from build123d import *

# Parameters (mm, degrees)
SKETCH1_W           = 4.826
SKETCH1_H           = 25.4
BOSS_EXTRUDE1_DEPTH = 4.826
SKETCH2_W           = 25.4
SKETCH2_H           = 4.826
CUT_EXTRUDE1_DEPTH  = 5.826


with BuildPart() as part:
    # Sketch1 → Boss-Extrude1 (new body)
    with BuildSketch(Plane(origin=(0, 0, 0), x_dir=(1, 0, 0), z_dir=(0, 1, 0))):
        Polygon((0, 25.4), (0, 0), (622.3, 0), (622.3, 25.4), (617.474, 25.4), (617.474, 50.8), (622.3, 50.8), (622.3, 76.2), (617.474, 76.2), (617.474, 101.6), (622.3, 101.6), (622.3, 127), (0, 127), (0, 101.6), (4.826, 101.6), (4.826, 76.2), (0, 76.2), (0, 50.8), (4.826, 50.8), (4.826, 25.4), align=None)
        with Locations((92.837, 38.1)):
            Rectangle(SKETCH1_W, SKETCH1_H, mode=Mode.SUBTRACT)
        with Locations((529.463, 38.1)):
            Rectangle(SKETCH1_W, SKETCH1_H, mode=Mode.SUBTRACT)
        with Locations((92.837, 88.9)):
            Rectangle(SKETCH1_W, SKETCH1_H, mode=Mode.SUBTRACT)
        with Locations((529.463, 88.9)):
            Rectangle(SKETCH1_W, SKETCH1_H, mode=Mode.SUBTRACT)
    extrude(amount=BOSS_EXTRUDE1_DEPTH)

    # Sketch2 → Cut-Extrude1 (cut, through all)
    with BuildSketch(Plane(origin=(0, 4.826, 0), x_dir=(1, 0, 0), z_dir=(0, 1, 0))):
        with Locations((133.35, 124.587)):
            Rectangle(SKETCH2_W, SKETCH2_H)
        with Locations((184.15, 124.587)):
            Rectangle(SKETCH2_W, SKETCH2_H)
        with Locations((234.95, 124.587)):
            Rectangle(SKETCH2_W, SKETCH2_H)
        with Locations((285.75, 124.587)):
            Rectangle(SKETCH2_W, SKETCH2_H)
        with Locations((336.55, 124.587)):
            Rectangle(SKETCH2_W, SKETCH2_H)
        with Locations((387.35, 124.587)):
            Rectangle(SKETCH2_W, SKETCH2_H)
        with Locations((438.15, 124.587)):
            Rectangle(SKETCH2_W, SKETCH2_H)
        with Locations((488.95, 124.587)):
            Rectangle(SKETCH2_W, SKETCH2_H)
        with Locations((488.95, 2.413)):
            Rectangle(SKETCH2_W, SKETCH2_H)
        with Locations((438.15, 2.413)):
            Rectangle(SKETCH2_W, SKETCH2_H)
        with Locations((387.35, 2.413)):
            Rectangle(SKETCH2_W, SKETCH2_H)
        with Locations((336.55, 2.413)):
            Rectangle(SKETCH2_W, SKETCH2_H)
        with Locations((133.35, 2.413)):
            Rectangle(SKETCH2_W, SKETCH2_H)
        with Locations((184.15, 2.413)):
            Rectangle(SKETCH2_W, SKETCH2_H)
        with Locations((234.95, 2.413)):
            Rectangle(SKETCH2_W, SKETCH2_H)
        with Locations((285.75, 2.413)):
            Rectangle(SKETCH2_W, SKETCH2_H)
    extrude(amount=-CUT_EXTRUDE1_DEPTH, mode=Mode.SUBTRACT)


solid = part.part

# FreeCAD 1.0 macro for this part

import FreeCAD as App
import Part
import Sketcher
from FreeCAD import Vector
Q = App.Units.Quantity


def add_polygon(sketch, points):
    """Adds a closed chain of lines whose ends are joined by coincident constraints."""
    first, n = sketch.GeometryCount, len(points)
    for a, b in zip(points, points[1:] + points[:1]):
        sketch.addGeometry(Part.LineSegment(App.Vector(*a, 0), App.Vector(*b, 0)), False)
    for i in range(n):
        sketch.addConstraint(Sketcher.Constraint("Coincident", first + i, 2, first + (i + 1) % n, 1))

doc = App.newDocument("Part")
body = doc.addObject("PartDesign::Body", "Body")

sketch1 = doc.addObject("Sketcher::SketchObject", "Sketch")
body.addObject(sketch1)
sketch1.AttachmentSupport = (doc.XZ_Plane, [""])
sketch1.MapMode = "FlatFace"
add_polygon(sketch1, [(0, -25.4), (0, 0), (622.3, 0), (622.3, -25.4), (617.474, -25.4), (617.474, -50.8), (622.3, -50.8), (622.3, -76.2), (617.474, -76.2), (617.474, -101.6), (622.3, -101.6), (622.3, -127), (0, -127), (0, -101.6), (4.826, -101.6), (4.826, -76.2), (0, -76.2), (0, -50.8), (4.826, -50.8), (4.826, -25.4)])
add_polygon(sketch1, [(95.25, -25.4), (90.424, -25.4), (90.424, -50.8), (95.25, -50.8)])
add_polygon(sketch1, [(531.876, -25.4), (527.05, -25.4), (527.05, -50.8), (531.876, -50.8)])
add_polygon(sketch1, [(95.25, -76.2), (90.424, -76.2), (90.424, -101.6), (95.25, -101.6)])
add_polygon(sketch1, [(531.876, -76.2), (527.05, -76.2), (527.05, -101.6), (531.876, -101.6)])
sketch1.addConstraint(Sketcher.Constraint("Vertical", 0))
sketch1.addConstraint(Sketcher.Constraint("Horizontal", 1))
sketch1.addConstraint(Sketcher.Constraint("Vertical", 2))
sketch1.addConstraint(Sketcher.Constraint("Horizontal", 3))
sketch1.addConstraint(Sketcher.Constraint("Vertical", 4))
sketch1.addConstraint(Sketcher.Constraint("Horizontal", 5))
sketch1.addConstraint(Sketcher.Constraint("Vertical", 6))
sketch1.addConstraint(Sketcher.Constraint("Horizontal", 7))
sketch1.addConstraint(Sketcher.Constraint("Vertical", 8))
sketch1.addConstraint(Sketcher.Constraint("Horizontal", 9))
sketch1.addConstraint(Sketcher.Constraint("Vertical", 10))
sketch1.addConstraint(Sketcher.Constraint("Horizontal", 11))
sketch1.addConstraint(Sketcher.Constraint("Vertical", 12))
sketch1.addConstraint(Sketcher.Constraint("Horizontal", 13))
sketch1.addConstraint(Sketcher.Constraint("Vertical", 14))
sketch1.addConstraint(Sketcher.Constraint("Horizontal", 15))
sketch1.addConstraint(Sketcher.Constraint("Vertical", 16))
sketch1.addConstraint(Sketcher.Constraint("Horizontal", 17))
sketch1.addConstraint(Sketcher.Constraint("Vertical", 18))
sketch1.addConstraint(Sketcher.Constraint("Horizontal", 19))
sketch1.addConstraint(Sketcher.Constraint("Horizontal", 20))
sketch1.addConstraint(Sketcher.Constraint("Vertical", 21))
sketch1.addConstraint(Sketcher.Constraint("Horizontal", 22))
sketch1.addConstraint(Sketcher.Constraint("Vertical", 23))
sketch1.addConstraint(Sketcher.Constraint("Horizontal", 24))
sketch1.addConstraint(Sketcher.Constraint("Vertical", 25))
sketch1.addConstraint(Sketcher.Constraint("Horizontal", 26))
sketch1.addConstraint(Sketcher.Constraint("Vertical", 27))
sketch1.addConstraint(Sketcher.Constraint("Horizontal", 28))
sketch1.addConstraint(Sketcher.Constraint("Vertical", 29))
sketch1.addConstraint(Sketcher.Constraint("Horizontal", 30))
sketch1.addConstraint(Sketcher.Constraint("Vertical", 31))
sketch1.addConstraint(Sketcher.Constraint("Horizontal", 32))
sketch1.addConstraint(Sketcher.Constraint("Vertical", 33))
sketch1.addConstraint(Sketcher.Constraint("Horizontal", 34))
sketch1.addConstraint(Sketcher.Constraint("Vertical", 35))
sketch1.addConstraint(Sketcher.Constraint("Coincident", 0, 2, -1, 1))
sketch1.addConstraint(Sketcher.Constraint("PointOnObject", 11, 2, -2))
sketch1.addConstraint(Sketcher.Constraint("PointOnObject", 15, 2, -2))
sketch1.addConstraint(Sketcher.Constraint("Horizontal", 9, 2, 12, 2))
sketch1.addConstraint(Sketcher.Constraint("Horizontal", 7, 2, 14, 2))
sketch1.addConstraint(Sketcher.Constraint("Horizontal", 5, 2, 16, 2))
sketch1.addConstraint(Sketcher.Constraint("Horizontal", 3, 2, 18, 2))
sketch1.addConstraint(Sketcher.Constraint("Horizontal", 19, 2, 20, 2))
sketch1.addConstraint(Sketcher.Constraint("Horizontal", 17, 2, 21, 2))
sketch1.addConstraint(Sketcher.Constraint("Horizontal", 23, 2, 24, 2))
sketch1.addConstraint(Sketcher.Constraint("Horizontal", 22, 2, 25, 2))
sketch1.addConstraint(Sketcher.Constraint("Horizontal", 15, 2, 28, 2))
sketch1.addConstraint(Sketcher.Constraint("Horizontal", 13, 2, 29, 2))
sketch1.addConstraint(Sketcher.Constraint("Horizontal", 31, 2, 32, 2))
sketch1.addConstraint(Sketcher.Constraint("Horizontal", 30, 2, 33, 2))
sketch1.addConstraint(Sketcher.Constraint("Vertical", 2, 2, 5, 2))
sketch1.addConstraint(Sketcher.Constraint("Vertical", 4, 2, 7, 2))
sketch1.addConstraint(Sketcher.Constraint("Vertical", 6, 2, 9, 2))
sketch1.addConstraint(Sketcher.Constraint("Vertical", 14, 2, 17, 2))
sketch1.addConstraint(Sketcher.Constraint("Vertical", 21, 2, 28, 2))
sketch1.addConstraint(Sketcher.Constraint("Vertical", 23, 2, 30, 2))
sketch1.addConstraint(Sketcher.Constraint("Vertical", 25, 2, 32, 2))
sketch1.addConstraint(Sketcher.Constraint("Vertical", 27, 2, 34, 2))
sketch1.addConstraint(Sketcher.Constraint("Equal", 9, 13))
sketch1.addConstraint(Sketcher.Constraint("Equal", 19, 20))
sketch1.addConstraint(Sketcher.Constraint("Equal", 22, 24))
sketch1.addConstraint(Sketcher.Constraint("Equal", 2, 4))
sketch1.addConstraint(Sketcher.Constraint("Equal", 4, 6))
sketch1.addConstraint(Sketcher.Constraint("Equal", 6, 8))
sketch1.addConstraint(Sketcher.Constraint("Equal", 8, 10))
sketch1.addConstraint(Sketcher.Constraint("DistanceY", 0, 1, 0, 2, Q("1 in")))
sketch1.addConstraint(Sketcher.Constraint("DistanceX", 1, 1, 1, 2, Q("24.5 in")))
sketch1.addConstraint(Sketcher.Constraint("DistanceX", 3, 2, 3, 1, Q("0.19 in")))
sketch1.addConstraint(Sketcher.Constraint("DistanceX", -1, 1, 20, 2, Q("3.56 in")))
sketch1.addConstraint(Sketcher.Constraint("DistanceX", -1, 1, 24, 2, Q("20.75 in")))
pad1 = doc.addObject("PartDesign::Pad", "Pad")
body.addObject(pad1)
pad1.Profile = sketch1
pad1.Length = Q("0.19 in")
pad1.Reversed = True

sketch2 = doc.addObject("Sketcher::SketchObject", "Sketch001")
body.addObject(sketch2)
sketch2.AttachmentSupport = (doc.XZ_Plane, [""])
sketch2.MapMode = "FlatFace"
sketch2.AttachmentOffset = App.Placement(Vector(0, 0, -0.19 * 25.4), App.Rotation())
add_polygon(sketch2, [(120.65, -127), (120.65, -122.174), (146.05, -122.174), (146.05, -127)])
add_polygon(sketch2, [(171.45, -127), (171.45, -122.174), (196.85, -122.174), (196.85, -127)])
add_polygon(sketch2, [(222.25, -127), (222.25, -122.174), (247.65, -122.174), (247.65, -127)])
add_polygon(sketch2, [(273.05, -127), (273.05, -122.174), (298.45, -122.174), (298.45, -127)])
add_polygon(sketch2, [(323.85, -127), (323.85, -122.174), (349.25, -122.174), (349.25, -127)])
add_polygon(sketch2, [(374.65, -127), (374.65, -122.174), (400.05, -122.174), (400.05, -127)])
add_polygon(sketch2, [(425.45, -127), (425.45, -122.174), (450.85, -122.174), (450.85, -127)])
add_polygon(sketch2, [(476.25, -127), (476.25, -122.174), (501.65, -122.174), (501.65, -127)])
add_polygon(sketch2, [(476.25, -4.826), (476.25, 0), (501.65, 0), (501.65, -4.826)])
add_polygon(sketch2, [(425.45, -4.826), (425.45, 0), (450.85, 0), (450.85, -4.826)])
add_polygon(sketch2, [(374.65, -4.826), (374.65, 0), (400.05, 0), (400.05, -4.826)])
add_polygon(sketch2, [(323.85, -4.826), (323.85, 0), (349.25, 0), (349.25, -4.826)])
add_polygon(sketch2, [(120.65, -4.826), (120.65, 0), (146.05, 0), (146.05, -4.826)])
add_polygon(sketch2, [(171.45, -4.826), (171.45, 0), (196.85, 0), (196.85, -4.826)])
add_polygon(sketch2, [(222.25, -4.826), (222.25, 0), (247.65, 0), (247.65, -4.826)])
add_polygon(sketch2, [(273.05, -4.826), (273.05, 0), (298.45, 0), (298.45, -4.826)])
sketch2.addConstraint(Sketcher.Constraint("Vertical", 0))
sketch2.addConstraint(Sketcher.Constraint("Horizontal", 1))
sketch2.addConstraint(Sketcher.Constraint("Vertical", 2))
sketch2.addConstraint(Sketcher.Constraint("Horizontal", 3))
sketch2.addConstraint(Sketcher.Constraint("Vertical", 4))
sketch2.addConstraint(Sketcher.Constraint("Horizontal", 5))
sketch2.addConstraint(Sketcher.Constraint("Vertical", 6))
sketch2.addConstraint(Sketcher.Constraint("Horizontal", 7))
sketch2.addConstraint(Sketcher.Constraint("Vertical", 8))
sketch2.addConstraint(Sketcher.Constraint("Horizontal", 9))
sketch2.addConstraint(Sketcher.Constraint("Vertical", 10))
sketch2.addConstraint(Sketcher.Constraint("Horizontal", 11))
sketch2.addConstraint(Sketcher.Constraint("Vertical", 12))
sketch2.addConstraint(Sketcher.Constraint("Horizontal", 13))
sketch2.addConstraint(Sketcher.Constraint("Vertical", 14))
sketch2.addConstraint(Sketcher.Constraint("Horizontal", 15))
sketch2.addConstraint(Sketcher.Constraint("Vertical", 16))
sketch2.addConstraint(Sketcher.Constraint("Horizontal", 17))
sketch2.addConstraint(Sketcher.Constraint("Vertical", 18))
sketch2.addConstraint(Sketcher.Constraint("Horizontal", 19))
sketch2.addConstraint(Sketcher.Constraint("Vertical", 20))
sketch2.addConstraint(Sketcher.Constraint("Horizontal", 21))
sketch2.addConstraint(Sketcher.Constraint("Vertical", 22))
sketch2.addConstraint(Sketcher.Constraint("Horizontal", 23))
sketch2.addConstraint(Sketcher.Constraint("Vertical", 24))
sketch2.addConstraint(Sketcher.Constraint("Horizontal", 25))
sketch2.addConstraint(Sketcher.Constraint("Vertical", 26))
sketch2.addConstraint(Sketcher.Constraint("Horizontal", 27))
sketch2.addConstraint(Sketcher.Constraint("Vertical", 28))
sketch2.addConstraint(Sketcher.Constraint("Horizontal", 29))
sketch2.addConstraint(Sketcher.Constraint("Vertical", 30))
sketch2.addConstraint(Sketcher.Constraint("Horizontal", 31))
sketch2.addConstraint(Sketcher.Constraint("Vertical", 32))
sketch2.addConstraint(Sketcher.Constraint("Horizontal", 33))
sketch2.addConstraint(Sketcher.Constraint("Vertical", 34))
sketch2.addConstraint(Sketcher.Constraint("Horizontal", 35))
sketch2.addConstraint(Sketcher.Constraint("Vertical", 36))
sketch2.addConstraint(Sketcher.Constraint("Horizontal", 37))
sketch2.addConstraint(Sketcher.Constraint("Vertical", 38))
sketch2.addConstraint(Sketcher.Constraint("Horizontal", 39))
sketch2.addConstraint(Sketcher.Constraint("Vertical", 40))
sketch2.addConstraint(Sketcher.Constraint("Horizontal", 41))
sketch2.addConstraint(Sketcher.Constraint("Vertical", 42))
sketch2.addConstraint(Sketcher.Constraint("Horizontal", 43))
sketch2.addConstraint(Sketcher.Constraint("Vertical", 44))
sketch2.addConstraint(Sketcher.Constraint("Horizontal", 45))
sketch2.addConstraint(Sketcher.Constraint("Vertical", 46))
sketch2.addConstraint(Sketcher.Constraint("Horizontal", 47))
sketch2.addConstraint(Sketcher.Constraint("Vertical", 48))
sketch2.addConstraint(Sketcher.Constraint("Horizontal", 49))
sketch2.addConstraint(Sketcher.Constraint("Vertical", 50))
sketch2.addConstraint(Sketcher.Constraint("Horizontal", 51))
sketch2.addConstraint(Sketcher.Constraint("Vertical", 52))
sketch2.addConstraint(Sketcher.Constraint("Horizontal", 53))
sketch2.addConstraint(Sketcher.Constraint("Vertical", 54))
sketch2.addConstraint(Sketcher.Constraint("Horizontal", 55))
sketch2.addConstraint(Sketcher.Constraint("Vertical", 56))
sketch2.addConstraint(Sketcher.Constraint("Horizontal", 57))
sketch2.addConstraint(Sketcher.Constraint("Vertical", 58))
sketch2.addConstraint(Sketcher.Constraint("Horizontal", 59))
sketch2.addConstraint(Sketcher.Constraint("Vertical", 60))
sketch2.addConstraint(Sketcher.Constraint("Horizontal", 61))
sketch2.addConstraint(Sketcher.Constraint("Vertical", 62))
sketch2.addConstraint(Sketcher.Constraint("Horizontal", 63))
sketch2.addConstraint(Sketcher.Constraint("PointOnObject", 32, 2, -1))
sketch2.addConstraint(Sketcher.Constraint("PointOnObject", 36, 2, -1))
sketch2.addConstraint(Sketcher.Constraint("PointOnObject", 40, 2, -1))
sketch2.addConstraint(Sketcher.Constraint("PointOnObject", 44, 2, -1))
sketch2.addConstraint(Sketcher.Constraint("PointOnObject", 48, 2, -1))
sketch2.addConstraint(Sketcher.Constraint("PointOnObject", 52, 2, -1))
sketch2.addConstraint(Sketcher.Constraint("PointOnObject", 56, 2, -1))
sketch2.addConstraint(Sketcher.Constraint("PointOnObject", 60, 2, -1))
sketch2.addConstraint(Sketcher.Constraint("Horizontal", 1, 2, 4, 2))
sketch2.addConstraint(Sketcher.Constraint("Horizontal", 3, 2, 6, 2))
sketch2.addConstraint(Sketcher.Constraint("Horizontal", 5, 2, 8, 2))
sketch2.addConstraint(Sketcher.Constraint("Horizontal", 7, 2, 10, 2))
sketch2.addConstraint(Sketcher.Constraint("Horizontal", 9, 2, 12, 2))
sketch2.addConstraint(Sketcher.Constraint("Horizontal", 11, 2, 14, 2))
sketch2.addConstraint(Sketcher.Constraint("Horizontal", 13, 2, 16, 2))
sketch2.addConstraint(Sketcher.Constraint("Horizontal", 15, 2, 18, 2))
sketch2.addConstraint(Sketcher.Constraint("Horizontal", 17, 2, 20, 2))
sketch2.addConstraint(Sketcher.Constraint("Horizontal", 19, 2, 22, 2))
sketch2.addConstraint(Sketcher.Constraint("Horizontal", 21, 2, 24, 2))
sketch2.addConstraint(Sketcher.Constraint("Horizontal", 23, 2, 26, 2))
sketch2.addConstraint(Sketcher.Constraint("Horizontal", 25, 2, 28, 2))
sketch2.addConstraint(Sketcher.Constraint("Horizontal", 27, 2, 30, 2))
sketch2.addConstraint(Sketcher.Constraint("Horizontal", 35, 2, 38, 2))
sketch2.addConstraint(Sketcher.Constraint("Horizontal", 39, 2, 42, 2))
sketch2.addConstraint(Sketcher.Constraint("Horizontal", 43, 2, 46, 2))
sketch2.addConstraint(Sketcher.Constraint("Horizontal", 47, 2, 50, 2))
sketch2.addConstraint(Sketcher.Constraint("Horizontal", 51, 2, 54, 2))
sketch2.addConstraint(Sketcher.Constraint("Horizontal", 55, 2, 58, 2))
sketch2.addConstraint(Sketcher.Constraint("Horizontal", 59, 2, 62, 2))
sketch2.addConstraint(Sketcher.Constraint("Vertical", 31, 2, 32, 2))
sketch2.addConstraint(Sketcher.Constraint("Vertical", 30, 2, 33, 2))
sketch2.addConstraint(Sketcher.Constraint("Vertical", 27, 2, 36, 2))
sketch2.addConstraint(Sketcher.Constraint("Vertical", 26, 2, 37, 2))
sketch2.addConstraint(Sketcher.Constraint("Vertical", 23, 2, 40, 2))
sketch2.addConstraint(Sketcher.Constraint("Vertical", 22, 2, 41, 2))
sketch2.addConstraint(Sketcher.Constraint("Vertical", 19, 2, 44, 2))
sketch2.addConstraint(Sketcher.Constraint("Vertical", 18, 2, 45, 2))
sketch2.addConstraint(Sketcher.Constraint("Vertical", 3, 2, 48, 2))
sketch2.addConstraint(Sketcher.Constraint("Vertical", 2, 2, 49, 2))
sketch2.addConstraint(Sketcher.Constraint("Vertical", 7, 2, 52, 2))
sketch2.addConstraint(Sketcher.Constraint("Vertical", 6, 2, 53, 2))
sketch2.addConstraint(Sketcher.Constraint("Vertical", 11, 2, 56, 2))
sketch2.addConstraint(Sketcher.Constraint("Vertical", 10, 2, 57, 2))
sketch2.addConstraint(Sketcher.Constraint("Vertical", 15, 2, 60, 2))
sketch2.addConstraint(Sketcher.Constraint("Vertical", 14, 2, 61, 2))
sketch2.addConstraint(Sketcher.Constraint("Equal", 3, 5))
sketch2.addConstraint(Sketcher.Constraint("Equal", 7, 9))
sketch2.addConstraint(Sketcher.Constraint("Equal", 11, 13))
sketch2.addConstraint(Sketcher.Constraint("Equal", 15, 17))
sketch2.addConstraint(Sketcher.Constraint("Equal", 19, 21))
sketch2.addConstraint(Sketcher.Constraint("Equal", 23, 25))
sketch2.addConstraint(Sketcher.Constraint("Equal", 27, 29))
sketch2.addConstraint(Sketcher.Constraint("Equal", 30, 32))
sketch2.addConstraint(Sketcher.Constraint("DistanceX", 1, 1, 1, 2, Q("1 in")))
sketch2.addConstraint(Sketcher.Constraint("DistanceY", 2, 2, -1, 1, Q("5 in")))
sketch2.addConstraint(Sketcher.Constraint("DistanceY", 0, 1, 0, 2, Q("0.19 in")))
sketch2.addConstraint(Sketcher.Constraint("DistanceX", -1, 1, 0, 2, Q("4.75 in")))
sketch2.addConstraint(Sketcher.Constraint("DistanceX", -1, 1, 4, 2, Q("6.75 in")))
sketch2.addConstraint(Sketcher.Constraint("DistanceX", -1, 1, 8, 2, Q("8.75 in")))
sketch2.addConstraint(Sketcher.Constraint("DistanceX", -1, 1, 12, 2, Q("10.75 in")))
sketch2.addConstraint(Sketcher.Constraint("DistanceX", -1, 1, 16, 2, Q("12.75 in")))
sketch2.addConstraint(Sketcher.Constraint("DistanceX", -1, 1, 20, 2, Q("14.75 in")))
sketch2.addConstraint(Sketcher.Constraint("DistanceX", -1, 1, 24, 2, Q("16.75 in")))
sketch2.addConstraint(Sketcher.Constraint("DistanceX", -1, 1, 28, 2, Q("18.75 in")))
pocket1 = doc.addObject("PartDesign::Pocket", "Pocket")
body.addObject(pocket1)
pocket1.Profile = sketch2
pocket1.Type = "ThroughAll"
pocket1.Reversed = True

doc.recompute()
